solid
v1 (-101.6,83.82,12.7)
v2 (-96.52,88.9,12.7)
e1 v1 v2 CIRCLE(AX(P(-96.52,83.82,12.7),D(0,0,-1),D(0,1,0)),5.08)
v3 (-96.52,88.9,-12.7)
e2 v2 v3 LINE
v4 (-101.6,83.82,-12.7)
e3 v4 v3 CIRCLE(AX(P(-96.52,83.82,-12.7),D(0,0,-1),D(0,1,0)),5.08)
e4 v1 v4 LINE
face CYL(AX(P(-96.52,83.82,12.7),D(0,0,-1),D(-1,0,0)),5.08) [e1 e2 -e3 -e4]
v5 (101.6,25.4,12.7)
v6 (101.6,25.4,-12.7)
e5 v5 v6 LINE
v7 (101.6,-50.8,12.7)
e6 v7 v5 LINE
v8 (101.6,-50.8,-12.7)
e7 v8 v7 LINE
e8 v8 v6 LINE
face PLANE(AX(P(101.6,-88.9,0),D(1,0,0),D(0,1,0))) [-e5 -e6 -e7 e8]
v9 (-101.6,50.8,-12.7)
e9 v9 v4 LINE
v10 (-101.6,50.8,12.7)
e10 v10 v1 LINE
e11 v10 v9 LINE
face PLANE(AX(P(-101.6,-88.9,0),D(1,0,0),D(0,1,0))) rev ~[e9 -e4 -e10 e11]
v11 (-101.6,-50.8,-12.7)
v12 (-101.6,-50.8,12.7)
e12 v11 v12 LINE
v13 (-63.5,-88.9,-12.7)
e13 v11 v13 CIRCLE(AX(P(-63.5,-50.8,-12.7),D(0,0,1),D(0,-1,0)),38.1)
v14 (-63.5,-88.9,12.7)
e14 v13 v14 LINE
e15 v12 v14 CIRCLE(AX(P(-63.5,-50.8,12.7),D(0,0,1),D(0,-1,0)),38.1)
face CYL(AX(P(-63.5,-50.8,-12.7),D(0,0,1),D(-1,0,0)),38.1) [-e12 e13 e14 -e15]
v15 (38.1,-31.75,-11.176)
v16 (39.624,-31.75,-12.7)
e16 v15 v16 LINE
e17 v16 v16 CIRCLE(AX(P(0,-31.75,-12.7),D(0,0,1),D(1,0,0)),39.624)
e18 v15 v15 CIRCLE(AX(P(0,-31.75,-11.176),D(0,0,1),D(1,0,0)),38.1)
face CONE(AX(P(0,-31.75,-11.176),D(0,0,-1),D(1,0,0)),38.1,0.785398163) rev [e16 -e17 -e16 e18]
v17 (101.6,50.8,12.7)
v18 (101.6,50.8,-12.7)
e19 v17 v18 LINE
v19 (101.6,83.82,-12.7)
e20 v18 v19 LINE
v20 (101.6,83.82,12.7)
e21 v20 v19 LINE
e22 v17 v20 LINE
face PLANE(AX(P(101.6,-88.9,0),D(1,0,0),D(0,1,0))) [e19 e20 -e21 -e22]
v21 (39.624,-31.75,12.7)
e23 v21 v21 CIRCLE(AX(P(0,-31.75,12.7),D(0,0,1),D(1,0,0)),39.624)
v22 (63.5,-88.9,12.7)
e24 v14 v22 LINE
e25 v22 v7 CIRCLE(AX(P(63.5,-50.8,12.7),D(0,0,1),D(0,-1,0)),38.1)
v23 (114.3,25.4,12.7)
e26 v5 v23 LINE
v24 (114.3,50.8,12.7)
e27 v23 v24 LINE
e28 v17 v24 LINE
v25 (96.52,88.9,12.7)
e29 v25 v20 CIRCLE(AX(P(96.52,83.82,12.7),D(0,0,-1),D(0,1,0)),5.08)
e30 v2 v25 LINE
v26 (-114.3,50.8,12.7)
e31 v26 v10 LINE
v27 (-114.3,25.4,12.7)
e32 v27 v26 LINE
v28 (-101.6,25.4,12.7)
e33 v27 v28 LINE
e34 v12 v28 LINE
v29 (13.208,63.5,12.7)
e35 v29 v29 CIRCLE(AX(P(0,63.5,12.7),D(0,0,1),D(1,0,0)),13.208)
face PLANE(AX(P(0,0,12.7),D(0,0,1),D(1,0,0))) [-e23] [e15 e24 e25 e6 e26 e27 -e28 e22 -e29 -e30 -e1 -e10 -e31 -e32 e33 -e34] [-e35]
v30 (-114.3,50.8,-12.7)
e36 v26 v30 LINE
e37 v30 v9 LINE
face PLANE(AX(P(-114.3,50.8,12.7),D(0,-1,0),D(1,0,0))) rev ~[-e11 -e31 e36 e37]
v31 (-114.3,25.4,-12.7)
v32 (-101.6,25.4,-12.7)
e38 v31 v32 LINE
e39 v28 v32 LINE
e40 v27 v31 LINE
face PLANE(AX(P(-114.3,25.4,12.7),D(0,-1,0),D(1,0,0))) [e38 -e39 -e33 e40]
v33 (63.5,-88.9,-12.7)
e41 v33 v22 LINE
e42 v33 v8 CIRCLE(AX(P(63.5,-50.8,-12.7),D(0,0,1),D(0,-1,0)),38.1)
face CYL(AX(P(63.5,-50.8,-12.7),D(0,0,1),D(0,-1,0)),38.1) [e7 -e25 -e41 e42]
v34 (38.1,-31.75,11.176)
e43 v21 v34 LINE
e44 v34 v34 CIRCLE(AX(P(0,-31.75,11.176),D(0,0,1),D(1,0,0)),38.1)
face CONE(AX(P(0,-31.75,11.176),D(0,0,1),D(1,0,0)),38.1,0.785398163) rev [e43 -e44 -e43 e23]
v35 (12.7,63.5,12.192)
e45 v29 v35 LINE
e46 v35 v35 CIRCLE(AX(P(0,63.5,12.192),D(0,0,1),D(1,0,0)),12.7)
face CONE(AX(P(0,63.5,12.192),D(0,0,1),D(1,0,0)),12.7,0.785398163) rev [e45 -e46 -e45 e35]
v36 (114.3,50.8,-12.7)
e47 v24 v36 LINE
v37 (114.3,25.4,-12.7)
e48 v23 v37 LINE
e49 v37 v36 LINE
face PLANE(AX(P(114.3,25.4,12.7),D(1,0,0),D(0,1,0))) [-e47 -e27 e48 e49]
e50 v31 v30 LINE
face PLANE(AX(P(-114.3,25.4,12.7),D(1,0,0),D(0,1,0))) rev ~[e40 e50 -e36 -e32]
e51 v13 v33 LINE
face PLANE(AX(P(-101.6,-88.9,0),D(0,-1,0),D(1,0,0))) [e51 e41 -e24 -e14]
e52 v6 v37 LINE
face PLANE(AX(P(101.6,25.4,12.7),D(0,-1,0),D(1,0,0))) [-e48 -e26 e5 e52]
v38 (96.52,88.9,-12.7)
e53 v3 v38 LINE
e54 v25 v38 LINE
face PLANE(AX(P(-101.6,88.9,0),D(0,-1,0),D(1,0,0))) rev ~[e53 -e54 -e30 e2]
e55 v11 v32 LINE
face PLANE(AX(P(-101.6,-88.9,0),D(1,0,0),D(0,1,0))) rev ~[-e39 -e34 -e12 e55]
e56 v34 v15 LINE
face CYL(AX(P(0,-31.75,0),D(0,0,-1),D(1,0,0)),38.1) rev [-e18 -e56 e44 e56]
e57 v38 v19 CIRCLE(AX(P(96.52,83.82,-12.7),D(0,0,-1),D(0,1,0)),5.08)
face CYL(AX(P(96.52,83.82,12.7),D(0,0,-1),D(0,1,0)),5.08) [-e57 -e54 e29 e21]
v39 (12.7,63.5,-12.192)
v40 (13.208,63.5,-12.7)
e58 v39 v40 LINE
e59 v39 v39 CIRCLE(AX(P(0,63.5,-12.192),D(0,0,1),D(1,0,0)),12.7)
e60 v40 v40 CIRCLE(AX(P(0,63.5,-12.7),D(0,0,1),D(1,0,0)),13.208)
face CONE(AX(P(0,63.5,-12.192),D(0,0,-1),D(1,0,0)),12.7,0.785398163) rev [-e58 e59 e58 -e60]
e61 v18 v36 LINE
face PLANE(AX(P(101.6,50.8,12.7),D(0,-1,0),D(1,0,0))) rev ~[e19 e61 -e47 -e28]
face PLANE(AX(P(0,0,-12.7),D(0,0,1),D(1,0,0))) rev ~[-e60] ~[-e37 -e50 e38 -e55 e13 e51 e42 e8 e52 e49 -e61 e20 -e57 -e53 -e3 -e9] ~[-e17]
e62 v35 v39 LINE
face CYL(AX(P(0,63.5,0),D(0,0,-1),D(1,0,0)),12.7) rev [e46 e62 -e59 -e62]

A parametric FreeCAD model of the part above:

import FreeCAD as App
import Part
import Sketcher
from FreeCAD import Vector
Q = App.Units.Quantity


def edges_at(feature, points):
    """Names of the edges that pass closest to the given points."""
    edges = feature.Shape.Edges
    near = lambda p: min(range(len(edges)), key=lambda i: edges[i].distToShape(Part.Vertex(*p))[0])
    return sorted({f"Edge{near(p) + 1}" for p in points})


def add_polygon(sketch, points):
    """Adds a closed chain of lines whose ends are joined by coincident constraints."""
    first, n = sketch.GeometryCount, len(points)
    for a, b in zip(points, points[1:] + points[:1]):
        sketch.addGeometry(Part.LineSegment(App.Vector(*a, 0), App.Vector(*b, 0)), False)
    for i in range(n):
        sketch.addConstraint(Sketcher.Constraint("Coincident", first + i, 2, first + (i + 1) % n, 1))

doc = App.newDocument("Part")
body = doc.addObject("PartDesign::Body", "Body")

# Sketch on XY plane
sketch1 = body.newObject("Sketcher::SketchObject", "Sketch")
sketch1.AttachmentSupport = (doc.getObject("XY_Plane"), [""])
sketch1.MapMode = "FlatFace"
add_polygon(sketch1, [(-101.6, 88.9), (-101.6, -88.9), (101.6, -88.9), (101.6, 88.9)])  # lines 0-3
sketch1.addGeometry(Part.Circle(Vector(0, -31.75, 0), Vector(0, 0, 1), 38.1), False)  # 4
sketch1.addGeometry(Part.Circle(Vector(0, 63.5, 0), Vector(0, 0, 1), 12.7), False)  # 5
sketch1.addConstraint(Sketcher.Constraint("Vertical", 0))
sketch1.addConstraint(Sketcher.Constraint("Horizontal", 1))
sketch1.addConstraint(Sketcher.Constraint("Vertical", 2))
sketch1.addConstraint(Sketcher.Constraint("Horizontal", 3))
sketch1.addConstraint(Sketcher.Constraint("Symmetric", 0, 2, 2, 2, -1, 1))
sketch1.addConstraint(Sketcher.Constraint("PointOnObject", 4, 3, -2))
sketch1.addConstraint(Sketcher.Constraint("PointOnObject", 5, 3, -2))
sketch1.addConstraint(Sketcher.Constraint("Diameter", 4, Q("3 in")))
sketch1.addConstraint(Sketcher.Constraint("Diameter", 5, Q("1 in")))
sketch1.addConstraint(Sketcher.Constraint("DistanceX", 1, 1, 1, 2, Q("8 in")))
sketch1.addConstraint(Sketcher.Constraint("DistanceY", 0, 2, 0, 1, Q("7 in")))
sketch1.addConstraint(Sketcher.Constraint("DistanceY", 0, 2, 5, 3, Q("6 in")))
sketch1.addConstraint(Sketcher.Constraint("DistanceY", 4, 3, -1, 1, Q("1.25 in")))
pad1 = body.newObject("PartDesign::Pad", "Pad")
pad1.Profile = sketch1
pad1.Length = Q("1 in")
pad1.Midplane = True
doc.recompute()

chamfer = body.newObject("PartDesign::Chamfer", "Chamfer")
chamfer.Base = (pad1, edges_at(pad1, [(-12.7, 63.5, 12.7), (-12.7, 63.5, -12.7)]))
chamfer.Size = Q("0.02 in")
doc.recompute()

chamfer2 = body.newObject("PartDesign::Chamfer", "Chamfer001")
chamfer2.Base = (chamfer, edges_at(chamfer, [(-38.1, -31.75, 12.7), (-38.1, -31.75, -12.7)]))
chamfer2.Size = Q("0.06 in")
doc.recompute()

fillet = body.newObject("PartDesign::Fillet", "Fillet")
fillet.Base = (chamfer2, edges_at(chamfer2, [(-101.6, -88.9, 0), (101.6, -88.9, 0)]))
fillet.Radius = Q("1.5 in")
doc.recompute()

fillet2 = body.newObject("PartDesign::Fillet", "Fillet001")
fillet2.Base = (fillet, edges_at(fillet, [(101.6, 88.9, 0), (-101.6, 88.9, 0)]))
fillet2.Radius = Q("0.2 in")

# Sketch on XY plane
sketch2 = body.newObject("Sketcher::SketchObject", "Sketch001")
sketch2.AttachmentSupport = (doc.getObject("XY_Plane"), [""])
sketch2.MapMode = "FlatFace"
sketch2.AttachmentOffset = App.Placement(Vector(0, 0, 0.5 * 25.4), App.Rotation())
add_polygon(sketch2, [(-114.3, 50.8), (-114.3, 25.4), (-101.6, 25.4), (-101.6, 50.8)])  # lines 0-3
add_polygon(sketch2, [(101.6, 50.8), (101.6, 25.4), (114.3, 25.4), (114.3, 50.8)])  # lines 4-7
sketch2.addConstraint(Sketcher.Constraint("Vertical", 0))
sketch2.addConstraint(Sketcher.Constraint("Horizontal", 1))
sketch2.addConstraint(Sketcher.Constraint("Vertical", 2))
sketch2.addConstraint(Sketcher.Constraint("Horizontal", 3))
sketch2.addConstraint(Sketcher.Constraint("Vertical", 4))
sketch2.addConstraint(Sketcher.Constraint("Horizontal", 5))
sketch2.addConstraint(Sketcher.Constraint("Vertical", 6))
sketch2.addConstraint(Sketcher.Constraint("Horizontal", 7))
sketch2.addConstraint(Sketcher.Constraint("Symmetric", 1, 2, 4, 2, -2))
sketch2.addConstraint(Sketcher.Constraint("Symmetric", 3, 2, 6, 2, -2))
sketch2.addConstraint(Sketcher.Constraint("DistanceY", 0, 2, 0, 1, Q("1 in")))
sketch2.addConstraint(Sketcher.Constraint("DistanceX", 1, 1, 1, 2, Q("0.5 in")))
sketch2.addConstraint(Sketcher.Constraint("DistanceY", -1, 1, 0, 2, Q("1 in")))
sketch2.addConstraint(Sketcher.Constraint("DistanceX", 1, 2, -1, 1, Q("4 in")))
pad2 = body.newObject("PartDesign::Pad", "Pad001")
pad2.Profile = sketch2
pad2.Length = Q("1 in")
pad2.Reversed = True

doc.recompute()
